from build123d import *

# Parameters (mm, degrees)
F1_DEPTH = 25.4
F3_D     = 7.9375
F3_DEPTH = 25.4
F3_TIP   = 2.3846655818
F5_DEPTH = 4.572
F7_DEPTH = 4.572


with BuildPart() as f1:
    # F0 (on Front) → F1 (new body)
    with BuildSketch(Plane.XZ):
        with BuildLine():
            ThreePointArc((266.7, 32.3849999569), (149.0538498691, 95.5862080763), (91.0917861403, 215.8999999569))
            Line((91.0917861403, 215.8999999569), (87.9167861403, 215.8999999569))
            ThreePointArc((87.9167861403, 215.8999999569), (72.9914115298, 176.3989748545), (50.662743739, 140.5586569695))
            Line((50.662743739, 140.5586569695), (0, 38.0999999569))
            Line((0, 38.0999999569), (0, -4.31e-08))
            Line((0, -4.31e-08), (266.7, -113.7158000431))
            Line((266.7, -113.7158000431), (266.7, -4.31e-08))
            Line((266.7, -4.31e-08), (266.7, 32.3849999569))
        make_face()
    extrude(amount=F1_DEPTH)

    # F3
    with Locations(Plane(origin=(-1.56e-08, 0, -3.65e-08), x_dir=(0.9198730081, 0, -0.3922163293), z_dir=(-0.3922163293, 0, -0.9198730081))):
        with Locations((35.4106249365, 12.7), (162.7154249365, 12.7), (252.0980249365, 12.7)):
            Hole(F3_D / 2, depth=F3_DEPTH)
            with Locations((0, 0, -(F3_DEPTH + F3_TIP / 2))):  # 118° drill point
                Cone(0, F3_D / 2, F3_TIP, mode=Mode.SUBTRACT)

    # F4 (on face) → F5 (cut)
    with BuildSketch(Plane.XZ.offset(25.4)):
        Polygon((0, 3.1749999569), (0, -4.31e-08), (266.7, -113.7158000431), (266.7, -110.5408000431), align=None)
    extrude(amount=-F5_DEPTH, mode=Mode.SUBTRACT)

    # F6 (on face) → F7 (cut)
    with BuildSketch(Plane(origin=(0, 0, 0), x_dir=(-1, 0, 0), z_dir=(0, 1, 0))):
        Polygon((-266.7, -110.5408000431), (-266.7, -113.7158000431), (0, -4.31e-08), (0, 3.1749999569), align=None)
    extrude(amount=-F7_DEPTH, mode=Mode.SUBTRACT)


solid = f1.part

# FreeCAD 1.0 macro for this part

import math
import FreeCAD as App
import Part
import Sketcher
from FreeCAD import Vector
Q = App.Units.Quantity

doc = App.newDocument("Part")
body = doc.addObject("PartDesign::Body", "Body")

# Sketch on XZ plane
sketch1 = body.newObject("Sketcher::SketchObject", "Sketch")
sketch1.AttachmentSupport = (doc.getObject("XZ_Plane"), [""])
sketch1.MapMode = "FlatFace"
sketch1.addGeometry([
    Part.ArcOfCircle(Part.Circle(Vector(305, 244.9, 0), Vector(0, 0, 1), 215.9), math.radians(-172), math.radians(-100)),  # 0
    Part.LineSegment(Vector(91.1, 215.9, 0), Vector(87.9, 215.9, 0)),  # 1
    Part.ArcOfCircle(Part.Circle(Vector(-120.5, 272.1, 0), Vector(0, 0, 1), 215.9), math.radians(-38), math.radians(-15)),  # 2
    Part.LineSegment(Vector(50.7, 140.6, 0), Vector(0, 38.1, 0)),  # 3
    Part.LineSegment(Vector(0, 38.1, 0), Vector(0, 0, 0)),  # 4
    Part.LineSegment(Vector(0, 0, 0), Vector(266.7, -113.7, 0)),  # 5
    Part.LineSegment(Vector(266.7, -113.7, 0), Vector(266.7, 32.4, 0)),  # 6
], False)
sketch1.addConstraint([
    Sketcher.Constraint("Coincident", 0, 1, 1, 1),
    Sketcher.Constraint("Coincident", 1, 2, 2, 2),
    Sketcher.Constraint("Coincident", 2, 1, 3, 1),
    Sketcher.Constraint("Coincident", 3, 2, 4, 1),
    Sketcher.Constraint("Coincident", 4, 2, 5, 1),
    Sketcher.Constraint("Coincident", 5, 2, 6, 1),
    Sketcher.Constraint("Coincident", 6, 2, 0, 2),
    Sketcher.Constraint("Horizontal", 1),
    Sketcher.Constraint("Vertical", 4),
    Sketcher.Constraint("Vertical", 6),
    Sketcher.Constraint("Coincident", 4, 2, -1, 1),
    Sketcher.Constraint("Equal", 0, 2),
    Sketcher.Constraint("Radius", 0, Q("8.5 in")),
    Sketcher.Constraint("DistanceY", 4, 2, 4, 1, Q("1.5 in")),
    Sketcher.Constraint("DistanceY", 3, 2, 1, 2, Q("7 in")),
    Sketcher.Constraint("Distance", 3, Q("4.5 in")),
    Sketcher.Constraint("DistanceX", -1, 1, 5, 2, Q("10.5 in")),
    Sketcher.Constraint("DistanceX", 1, 2, 1, 1, Q("0.125 in")),
    Sketcher.Constraint("DistanceY", 6, 1, 6, 2, Q("5.752 in")),
    Sketcher.Constraint("DistanceY", 5, 2, -1, 1, Q("4.477 in")),
    Sketcher.Constraint("DistanceX", -1, 1, 0, 3, 305.0416),
    Sketcher.Constraint("DistanceY", -1, 1, 2, 3, 272.095269),
])
pad1 = body.newObject("PartDesign::Pad", "Pad")
pad1.Profile = sketch1
pad1.Length = Q("1 in")

# Sketch on an angled plane
sketch2 = body.newObject("Sketcher::SketchObject", "Sketch001")
sketch2.Placement = App.Placement(Vector(0, 0, 0), App.Rotation(Vector(0.919873008, 0, -0.392216329), Vector(0, -1, 0), Vector(-0.392216329, 0, -0.919873008), "ZXY"))
sketch2.addGeometry([
    Part.Circle(Vector(35.4, 12.7, 0), Vector(0, 0, 1), 4),
    Part.Circle(Vector(162.7, 12.7, 0), Vector(0, 0, 1), 4),
    Part.Circle(Vector(252.1, 12.7, 0), Vector(0, 0, 1), 4),
], False)
sketch2.addConstraint([
    Sketcher.Constraint("Equal", 0, 1),
    Sketcher.Constraint("Equal", 1, 2),
    Sketcher.Constraint("Horizontal", 0, 3, 1, 3),
    Sketcher.Constraint("Horizontal", 1, 3, 2, 3),
    Sketcher.Constraint("Diameter", 0, Q("0.3125 in")),
    Sketcher.Constraint("DistanceY", -1, 1, 0, 3, Q("0.5 in")),
    Sketcher.Constraint("DistanceX", 0, 3, 1, 3, Q("5.012 in")),
    Sketcher.Constraint("DistanceX", 1, 3, 2, 3, Q("3.519 in")),
    Sketcher.Constraint("DistanceX", -1, 1, 0, 3, 35.410625),
])
doc.recompute()
hole = body.newObject("PartDesign::Hole", "Hole")
hole.Profile = sketch2
hole.ThreadType = "None"
hole.Diameter = Q("0.3125 in")
hole.DepthType = "Dimension"
hole.Depth = Q("1 in")
hole.DrillPoint = "Angled"
hole.DrillPointAngle = 118

# Sketch on XZ plane
sketch3 = body.newObject("Sketcher::SketchObject", "Sketch002")
sketch3.AttachmentSupport = (doc.getObject("XZ_Plane"), [""])
sketch3.MapMode = "FlatFace"
sketch3.AttachmentOffset = App.Placement(Vector(0, 0, 1 * 25.4), App.Rotation())
sketch3.addGeometry([
    Part.LineSegment(Vector(0, 3.2, 0), Vector(0, 0, 0)),
    Part.LineSegment(Vector(0, 0, 0), Vector(266.7, -113.7, 0)),
    Part.LineSegment(Vector(266.7, -113.7, 0), Vector(266.7, -110.5, 0)),
    Part.LineSegment(Vector(266.7, -110.5, 0), Vector(0, 3.2, 0)),
], False)
sketch3.addConstraint([
    Sketcher.Constraint("Coincident", 0, 2, 1, 1),
    Sketcher.Constraint("Coincident", 1, 2, 2, 1),
    Sketcher.Constraint("Coincident", 2, 2, 3, 1),
    Sketcher.Constraint("Coincident", 3, 2, 0, 1),
    Sketcher.Constraint("Vertical", 0),
    Sketcher.Constraint("Vertical", 2),
    Sketcher.Constraint("Coincident", 0, 2, -1, 1),
    Sketcher.Constraint("Parallel", 1, 3),
    Sketcher.Constraint("DistanceX", -1, 1, 1, 2, Q("10.5 in")),
    Sketcher.Constraint("DistanceY", 0, 2, 0, 1, Q("0.125 in")),
    Sketcher.Constraint("DistanceY", 1, 2, -1, 1, Q("4.477 in")),
])
pocket1 = body.newObject("PartDesign::Pocket", "Pocket")
pocket1.Profile = sketch3
pocket1.Length = Q("0.18 in")

# Sketch on XZ plane
sketch4 = body.newObject("Sketcher::SketchObject", "Sketch003")
sketch4.AttachmentSupport = (doc.getObject("XZ_Plane"), [""])
sketch4.MapMode = "FlatFace"
sketch4.addGeometry([
    Part.LineSegment(Vector(266.7, -110.5, 0), Vector(266.7, -113.7, 0)),
    Part.LineSegment(Vector(266.7, -113.7, 0), Vector(0, 0, 0)),
    Part.LineSegment(Vector(0, 0, 0), Vector(0, 3.2, 0)),
    Part.LineSegment(Vector(0, 3.2, 0), Vector(266.7, -110.5, 0)),
], False)
sketch4.addConstraint([
    Sketcher.Constraint("Coincident", 0, 2, 1, 1),
    Sketcher.Constraint("Coincident", 1, 2, 2, 1),
    Sketcher.Constraint("Coincident", 2, 2, 3, 1),
    Sketcher.Constraint("Coincident", 3, 2, 0, 1),
    Sketcher.Constraint("Vertical", 0),
    Sketcher.Constraint("Vertical", 2),
    Sketcher.Constraint("Coincident", 1, 2, -1, 1),
    Sketcher.Constraint("Parallel", 1, 3),
    Sketcher.Constraint("DistanceX", -1, 1, 0, 2, Q("10.5 in")),
    Sketcher.Constraint("DistanceY", 0, 2, 0, 1, Q("0.125 in")),
    Sketcher.Constraint("DistanceY", 0, 2, -1, 1, Q("4.477 in")),
])
pocket2 = body.newObject("PartDesign::Pocket", "Pocket001")
pocket2.Profile = sketch4
pocket2.Length = Q("0.18 in")
pocket2.Reversed = True

doc.recompute()
